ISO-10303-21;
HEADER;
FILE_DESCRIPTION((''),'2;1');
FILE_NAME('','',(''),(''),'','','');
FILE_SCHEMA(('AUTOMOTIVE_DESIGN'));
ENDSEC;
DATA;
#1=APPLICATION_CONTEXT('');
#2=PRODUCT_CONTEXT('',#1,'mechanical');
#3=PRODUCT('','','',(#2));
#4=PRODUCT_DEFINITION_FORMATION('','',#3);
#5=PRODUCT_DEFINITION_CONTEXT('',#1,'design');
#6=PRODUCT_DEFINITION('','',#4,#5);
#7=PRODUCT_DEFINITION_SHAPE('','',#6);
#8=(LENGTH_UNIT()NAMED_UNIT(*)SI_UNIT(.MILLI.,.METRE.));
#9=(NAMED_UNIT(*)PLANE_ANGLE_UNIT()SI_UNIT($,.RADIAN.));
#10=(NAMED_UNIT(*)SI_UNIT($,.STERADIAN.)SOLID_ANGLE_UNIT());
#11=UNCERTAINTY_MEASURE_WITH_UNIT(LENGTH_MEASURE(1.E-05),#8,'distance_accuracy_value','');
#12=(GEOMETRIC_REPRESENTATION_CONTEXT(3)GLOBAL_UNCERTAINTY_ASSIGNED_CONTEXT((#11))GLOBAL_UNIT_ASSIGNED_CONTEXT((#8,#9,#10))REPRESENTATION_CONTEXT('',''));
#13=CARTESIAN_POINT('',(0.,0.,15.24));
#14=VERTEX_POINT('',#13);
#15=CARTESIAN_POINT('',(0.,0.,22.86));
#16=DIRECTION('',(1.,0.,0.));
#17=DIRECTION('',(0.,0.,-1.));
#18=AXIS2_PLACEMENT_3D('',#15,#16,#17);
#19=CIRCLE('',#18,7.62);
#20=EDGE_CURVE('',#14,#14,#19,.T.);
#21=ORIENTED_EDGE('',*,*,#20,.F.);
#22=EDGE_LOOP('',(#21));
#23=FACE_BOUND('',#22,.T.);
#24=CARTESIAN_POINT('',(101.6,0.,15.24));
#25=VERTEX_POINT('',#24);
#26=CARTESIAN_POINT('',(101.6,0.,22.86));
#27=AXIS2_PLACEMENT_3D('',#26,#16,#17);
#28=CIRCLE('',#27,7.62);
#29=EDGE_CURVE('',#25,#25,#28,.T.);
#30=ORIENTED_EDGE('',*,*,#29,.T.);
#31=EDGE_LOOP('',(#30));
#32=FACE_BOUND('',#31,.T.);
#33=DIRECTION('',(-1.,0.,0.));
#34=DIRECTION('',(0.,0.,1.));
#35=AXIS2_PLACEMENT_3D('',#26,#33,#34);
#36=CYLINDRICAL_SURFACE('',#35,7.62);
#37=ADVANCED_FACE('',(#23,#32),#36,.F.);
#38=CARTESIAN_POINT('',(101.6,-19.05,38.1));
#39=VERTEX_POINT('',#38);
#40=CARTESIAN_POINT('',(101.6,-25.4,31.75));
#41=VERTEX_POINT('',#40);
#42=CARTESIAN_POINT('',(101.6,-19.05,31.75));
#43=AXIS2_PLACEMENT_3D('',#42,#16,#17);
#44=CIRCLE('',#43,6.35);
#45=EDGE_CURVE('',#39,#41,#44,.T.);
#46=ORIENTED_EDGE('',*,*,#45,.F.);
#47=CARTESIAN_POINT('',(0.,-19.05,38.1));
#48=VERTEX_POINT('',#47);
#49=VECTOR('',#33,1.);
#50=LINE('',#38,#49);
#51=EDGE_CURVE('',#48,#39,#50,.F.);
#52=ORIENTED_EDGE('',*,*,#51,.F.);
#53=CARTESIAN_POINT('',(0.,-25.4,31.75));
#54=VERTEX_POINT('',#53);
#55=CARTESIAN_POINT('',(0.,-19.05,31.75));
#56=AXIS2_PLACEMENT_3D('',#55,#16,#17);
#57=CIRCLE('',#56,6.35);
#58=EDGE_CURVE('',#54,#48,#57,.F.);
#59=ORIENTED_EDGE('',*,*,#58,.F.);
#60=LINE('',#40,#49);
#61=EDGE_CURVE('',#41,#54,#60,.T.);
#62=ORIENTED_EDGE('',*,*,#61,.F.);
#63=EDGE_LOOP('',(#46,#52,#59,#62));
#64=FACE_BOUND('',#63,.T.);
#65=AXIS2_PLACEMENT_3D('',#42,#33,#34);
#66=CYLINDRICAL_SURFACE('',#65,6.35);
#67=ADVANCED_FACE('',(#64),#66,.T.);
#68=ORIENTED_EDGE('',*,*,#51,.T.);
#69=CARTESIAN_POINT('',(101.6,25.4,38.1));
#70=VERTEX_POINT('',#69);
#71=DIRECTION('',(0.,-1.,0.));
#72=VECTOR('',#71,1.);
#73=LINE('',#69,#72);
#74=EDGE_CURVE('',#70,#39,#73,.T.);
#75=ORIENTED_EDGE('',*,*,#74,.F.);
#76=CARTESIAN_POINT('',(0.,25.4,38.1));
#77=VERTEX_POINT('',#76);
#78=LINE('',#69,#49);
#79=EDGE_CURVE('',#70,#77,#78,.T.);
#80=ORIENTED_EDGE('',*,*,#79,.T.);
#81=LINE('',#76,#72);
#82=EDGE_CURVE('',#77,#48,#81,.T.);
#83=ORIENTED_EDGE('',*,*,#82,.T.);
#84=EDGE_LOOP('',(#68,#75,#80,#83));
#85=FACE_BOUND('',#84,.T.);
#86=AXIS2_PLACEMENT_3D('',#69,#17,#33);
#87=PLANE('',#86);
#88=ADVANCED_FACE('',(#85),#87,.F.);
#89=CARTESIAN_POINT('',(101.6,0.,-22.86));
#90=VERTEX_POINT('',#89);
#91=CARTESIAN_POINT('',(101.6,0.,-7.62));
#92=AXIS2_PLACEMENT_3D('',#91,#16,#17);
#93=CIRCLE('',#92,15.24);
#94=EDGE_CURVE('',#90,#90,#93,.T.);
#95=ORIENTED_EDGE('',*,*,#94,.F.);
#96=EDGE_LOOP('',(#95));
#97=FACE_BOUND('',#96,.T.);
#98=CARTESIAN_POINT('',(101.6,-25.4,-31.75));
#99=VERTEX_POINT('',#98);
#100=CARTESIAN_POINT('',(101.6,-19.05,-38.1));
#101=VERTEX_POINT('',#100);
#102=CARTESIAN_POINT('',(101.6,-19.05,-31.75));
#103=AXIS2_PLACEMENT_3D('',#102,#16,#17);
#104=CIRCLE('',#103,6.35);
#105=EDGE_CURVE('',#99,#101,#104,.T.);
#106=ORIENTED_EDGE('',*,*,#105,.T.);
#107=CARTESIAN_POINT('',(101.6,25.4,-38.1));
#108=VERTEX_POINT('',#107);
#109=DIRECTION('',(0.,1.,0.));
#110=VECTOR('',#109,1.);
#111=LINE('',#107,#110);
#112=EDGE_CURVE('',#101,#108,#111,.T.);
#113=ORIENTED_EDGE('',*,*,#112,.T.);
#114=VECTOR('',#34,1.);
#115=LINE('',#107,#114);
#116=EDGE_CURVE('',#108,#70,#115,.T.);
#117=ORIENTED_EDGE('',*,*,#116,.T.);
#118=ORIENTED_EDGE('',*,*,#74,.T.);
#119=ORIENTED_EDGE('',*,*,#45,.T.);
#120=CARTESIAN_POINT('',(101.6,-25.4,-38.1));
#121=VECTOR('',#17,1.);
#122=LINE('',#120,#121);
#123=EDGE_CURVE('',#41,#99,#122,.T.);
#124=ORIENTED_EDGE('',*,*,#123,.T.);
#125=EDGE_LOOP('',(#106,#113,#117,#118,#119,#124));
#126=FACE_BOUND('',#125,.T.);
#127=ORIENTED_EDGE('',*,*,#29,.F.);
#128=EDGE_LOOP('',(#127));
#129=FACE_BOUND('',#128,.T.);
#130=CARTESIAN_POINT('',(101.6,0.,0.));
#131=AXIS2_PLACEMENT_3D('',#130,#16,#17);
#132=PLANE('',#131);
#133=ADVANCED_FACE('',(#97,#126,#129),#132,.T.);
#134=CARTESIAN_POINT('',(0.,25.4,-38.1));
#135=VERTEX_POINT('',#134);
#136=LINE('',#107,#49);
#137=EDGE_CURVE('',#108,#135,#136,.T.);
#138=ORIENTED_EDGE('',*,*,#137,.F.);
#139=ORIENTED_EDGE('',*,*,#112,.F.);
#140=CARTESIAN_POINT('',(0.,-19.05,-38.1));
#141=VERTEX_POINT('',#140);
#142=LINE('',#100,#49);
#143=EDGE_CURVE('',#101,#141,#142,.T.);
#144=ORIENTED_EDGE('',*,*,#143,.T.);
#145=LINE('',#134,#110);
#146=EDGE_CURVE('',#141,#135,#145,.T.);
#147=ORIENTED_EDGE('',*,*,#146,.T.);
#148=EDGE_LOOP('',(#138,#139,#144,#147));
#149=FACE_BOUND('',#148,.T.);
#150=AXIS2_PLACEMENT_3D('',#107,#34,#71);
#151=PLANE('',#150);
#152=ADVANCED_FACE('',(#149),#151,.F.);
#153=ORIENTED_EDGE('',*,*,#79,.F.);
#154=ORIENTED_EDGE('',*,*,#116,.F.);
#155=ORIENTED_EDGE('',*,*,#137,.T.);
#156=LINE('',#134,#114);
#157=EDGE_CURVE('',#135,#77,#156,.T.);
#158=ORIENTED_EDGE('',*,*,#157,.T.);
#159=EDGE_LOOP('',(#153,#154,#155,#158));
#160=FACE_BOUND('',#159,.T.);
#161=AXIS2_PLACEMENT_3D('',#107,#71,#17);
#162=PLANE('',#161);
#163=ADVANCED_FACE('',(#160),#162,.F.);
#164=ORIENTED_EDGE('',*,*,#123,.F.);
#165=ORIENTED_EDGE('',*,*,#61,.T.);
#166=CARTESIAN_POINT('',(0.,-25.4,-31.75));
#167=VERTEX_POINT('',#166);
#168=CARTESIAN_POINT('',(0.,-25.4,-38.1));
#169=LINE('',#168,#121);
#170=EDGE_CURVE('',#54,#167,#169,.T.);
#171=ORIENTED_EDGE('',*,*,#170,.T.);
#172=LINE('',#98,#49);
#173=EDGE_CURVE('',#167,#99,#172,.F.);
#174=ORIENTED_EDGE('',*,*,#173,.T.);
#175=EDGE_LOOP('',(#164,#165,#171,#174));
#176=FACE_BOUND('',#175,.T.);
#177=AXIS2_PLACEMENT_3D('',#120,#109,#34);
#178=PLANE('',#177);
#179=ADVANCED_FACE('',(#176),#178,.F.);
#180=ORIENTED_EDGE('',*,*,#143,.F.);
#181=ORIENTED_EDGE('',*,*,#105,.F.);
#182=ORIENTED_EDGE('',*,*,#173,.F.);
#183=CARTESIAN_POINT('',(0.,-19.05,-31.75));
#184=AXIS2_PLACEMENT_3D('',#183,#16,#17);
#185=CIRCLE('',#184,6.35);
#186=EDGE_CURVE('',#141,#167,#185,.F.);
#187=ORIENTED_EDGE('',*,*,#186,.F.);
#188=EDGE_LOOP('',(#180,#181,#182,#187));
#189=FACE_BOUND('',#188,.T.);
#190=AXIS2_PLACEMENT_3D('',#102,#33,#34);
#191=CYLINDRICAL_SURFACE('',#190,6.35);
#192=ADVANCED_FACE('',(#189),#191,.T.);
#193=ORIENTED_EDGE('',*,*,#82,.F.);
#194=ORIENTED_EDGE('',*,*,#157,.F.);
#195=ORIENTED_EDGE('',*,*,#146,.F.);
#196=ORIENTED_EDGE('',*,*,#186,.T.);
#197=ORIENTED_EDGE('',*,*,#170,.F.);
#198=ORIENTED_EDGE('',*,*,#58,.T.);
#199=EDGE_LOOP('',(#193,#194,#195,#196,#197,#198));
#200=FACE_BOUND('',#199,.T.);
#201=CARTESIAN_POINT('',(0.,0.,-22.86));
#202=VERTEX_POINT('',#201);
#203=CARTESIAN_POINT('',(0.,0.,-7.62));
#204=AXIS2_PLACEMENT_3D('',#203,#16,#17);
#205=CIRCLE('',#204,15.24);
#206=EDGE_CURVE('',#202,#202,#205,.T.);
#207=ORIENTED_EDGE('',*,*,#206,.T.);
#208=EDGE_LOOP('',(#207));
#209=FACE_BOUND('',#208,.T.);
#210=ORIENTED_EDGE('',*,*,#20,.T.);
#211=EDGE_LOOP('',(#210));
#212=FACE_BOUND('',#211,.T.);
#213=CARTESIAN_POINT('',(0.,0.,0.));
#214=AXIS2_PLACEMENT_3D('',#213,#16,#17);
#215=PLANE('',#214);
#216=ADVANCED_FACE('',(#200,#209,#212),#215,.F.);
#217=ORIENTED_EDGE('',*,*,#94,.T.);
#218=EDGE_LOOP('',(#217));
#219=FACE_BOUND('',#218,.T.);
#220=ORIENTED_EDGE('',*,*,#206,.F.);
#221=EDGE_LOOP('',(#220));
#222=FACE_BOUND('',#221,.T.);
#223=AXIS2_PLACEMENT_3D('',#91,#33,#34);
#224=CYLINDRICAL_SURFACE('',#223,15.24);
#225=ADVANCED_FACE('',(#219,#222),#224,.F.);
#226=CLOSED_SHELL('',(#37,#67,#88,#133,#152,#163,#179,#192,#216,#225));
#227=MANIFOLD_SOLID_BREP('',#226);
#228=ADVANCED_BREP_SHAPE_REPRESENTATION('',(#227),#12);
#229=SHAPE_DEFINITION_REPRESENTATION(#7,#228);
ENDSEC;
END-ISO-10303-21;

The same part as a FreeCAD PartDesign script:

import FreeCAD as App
import Part
import Sketcher

V = App.Vector
Q = App.Units.Quantity


def edges_at(feature, points):
    """Names of the edges that pass closest to the given points."""
    edges = feature.Shape.Edges
    near = lambda p: min(range(len(edges)), key=lambda i: edges[i].distToShape(Part.Vertex(*p))[0])
    return sorted({f"Edge{near(p) + 1}" for p in points})


def add_polygon(sketch, points):
    """Adds a closed chain of lines whose ends are joined by coincident constraints."""
    first, n = sketch.GeometryCount, len(points)
    for a, b in zip(points, points[1:] + points[:1]):
        sketch.addGeometry(Part.LineSegment(App.Vector(*a, 0), App.Vector(*b, 0)), False)
    for i in range(n):
        sketch.addConstraint(Sketcher.Constraint("Coincident", first + i, 2, first + (i + 1) % n, 1))

doc = App.newDocument("Part")
body = doc.addObject("PartDesign::Body", "Body")

sketch1 = body.newObject("Sketcher::SketchObject", "Sketch")
sketch1.AttachmentSupport = (doc.getObject("YZ_Plane"), [""])
sketch1.MapMode = "FlatFace"
add_polygon(sketch1, [(-25.4, 38.1), (-25.4, -38.1), (25.4, -38.1), (25.4, 38.1)])
sketch1.addGeometry(Part.Circle(V(0, -7.62, 0), V(0, 0, 1), 15.24), False)
sketch1.addGeometry(Part.Circle(V(0, 22.86, 0), V(0, 0, 1), 7.62), False)
sketch1.addConstraint([
    Sketcher.Constraint("Vertical", 0),
    Sketcher.Constraint("Horizontal", 1),
    Sketcher.Constraint("Vertical", 2),
    Sketcher.Constraint("Horizontal", 3),
    Sketcher.Constraint("Symmetric", 0, 2, 2, 2, -1, 1),
    Sketcher.Constraint("PointOnObject", 4, 3, -2),
    Sketcher.Constraint("PointOnObject", 5, 3, -2),
    Sketcher.Constraint("Diameter", 4, Q("1.2 in")),
    Sketcher.Constraint("Diameter", 5, Q("0.6 in")),
    Sketcher.Constraint("DistanceX", 1, 1, 1, 2, Q("2 in")),
    Sketcher.Constraint("DistanceY", 0, 2, 0, 1, Q("3 in")),
    Sketcher.Constraint("DistanceY", 4, 3, -1, 1, Q("0.3 in")),
    Sketcher.Constraint("DistanceY", -1, 1, 5, 3, Q("0.9 in")),
])
pad1 = body.newObject("PartDesign::Pad", "Pad")
pad1.Profile = sketch1
pad1.Length = Q("4 in")
doc.recompute()

fillet = body.newObject("PartDesign::Fillet", "Fillet")
fillet.Base = (pad1, edges_at(pad1, [(50.8, -25.4, 38.1), (50.8, -25.4, -38.1)]))
fillet.Radius = Q("0.25 in")

doc.recompute()
